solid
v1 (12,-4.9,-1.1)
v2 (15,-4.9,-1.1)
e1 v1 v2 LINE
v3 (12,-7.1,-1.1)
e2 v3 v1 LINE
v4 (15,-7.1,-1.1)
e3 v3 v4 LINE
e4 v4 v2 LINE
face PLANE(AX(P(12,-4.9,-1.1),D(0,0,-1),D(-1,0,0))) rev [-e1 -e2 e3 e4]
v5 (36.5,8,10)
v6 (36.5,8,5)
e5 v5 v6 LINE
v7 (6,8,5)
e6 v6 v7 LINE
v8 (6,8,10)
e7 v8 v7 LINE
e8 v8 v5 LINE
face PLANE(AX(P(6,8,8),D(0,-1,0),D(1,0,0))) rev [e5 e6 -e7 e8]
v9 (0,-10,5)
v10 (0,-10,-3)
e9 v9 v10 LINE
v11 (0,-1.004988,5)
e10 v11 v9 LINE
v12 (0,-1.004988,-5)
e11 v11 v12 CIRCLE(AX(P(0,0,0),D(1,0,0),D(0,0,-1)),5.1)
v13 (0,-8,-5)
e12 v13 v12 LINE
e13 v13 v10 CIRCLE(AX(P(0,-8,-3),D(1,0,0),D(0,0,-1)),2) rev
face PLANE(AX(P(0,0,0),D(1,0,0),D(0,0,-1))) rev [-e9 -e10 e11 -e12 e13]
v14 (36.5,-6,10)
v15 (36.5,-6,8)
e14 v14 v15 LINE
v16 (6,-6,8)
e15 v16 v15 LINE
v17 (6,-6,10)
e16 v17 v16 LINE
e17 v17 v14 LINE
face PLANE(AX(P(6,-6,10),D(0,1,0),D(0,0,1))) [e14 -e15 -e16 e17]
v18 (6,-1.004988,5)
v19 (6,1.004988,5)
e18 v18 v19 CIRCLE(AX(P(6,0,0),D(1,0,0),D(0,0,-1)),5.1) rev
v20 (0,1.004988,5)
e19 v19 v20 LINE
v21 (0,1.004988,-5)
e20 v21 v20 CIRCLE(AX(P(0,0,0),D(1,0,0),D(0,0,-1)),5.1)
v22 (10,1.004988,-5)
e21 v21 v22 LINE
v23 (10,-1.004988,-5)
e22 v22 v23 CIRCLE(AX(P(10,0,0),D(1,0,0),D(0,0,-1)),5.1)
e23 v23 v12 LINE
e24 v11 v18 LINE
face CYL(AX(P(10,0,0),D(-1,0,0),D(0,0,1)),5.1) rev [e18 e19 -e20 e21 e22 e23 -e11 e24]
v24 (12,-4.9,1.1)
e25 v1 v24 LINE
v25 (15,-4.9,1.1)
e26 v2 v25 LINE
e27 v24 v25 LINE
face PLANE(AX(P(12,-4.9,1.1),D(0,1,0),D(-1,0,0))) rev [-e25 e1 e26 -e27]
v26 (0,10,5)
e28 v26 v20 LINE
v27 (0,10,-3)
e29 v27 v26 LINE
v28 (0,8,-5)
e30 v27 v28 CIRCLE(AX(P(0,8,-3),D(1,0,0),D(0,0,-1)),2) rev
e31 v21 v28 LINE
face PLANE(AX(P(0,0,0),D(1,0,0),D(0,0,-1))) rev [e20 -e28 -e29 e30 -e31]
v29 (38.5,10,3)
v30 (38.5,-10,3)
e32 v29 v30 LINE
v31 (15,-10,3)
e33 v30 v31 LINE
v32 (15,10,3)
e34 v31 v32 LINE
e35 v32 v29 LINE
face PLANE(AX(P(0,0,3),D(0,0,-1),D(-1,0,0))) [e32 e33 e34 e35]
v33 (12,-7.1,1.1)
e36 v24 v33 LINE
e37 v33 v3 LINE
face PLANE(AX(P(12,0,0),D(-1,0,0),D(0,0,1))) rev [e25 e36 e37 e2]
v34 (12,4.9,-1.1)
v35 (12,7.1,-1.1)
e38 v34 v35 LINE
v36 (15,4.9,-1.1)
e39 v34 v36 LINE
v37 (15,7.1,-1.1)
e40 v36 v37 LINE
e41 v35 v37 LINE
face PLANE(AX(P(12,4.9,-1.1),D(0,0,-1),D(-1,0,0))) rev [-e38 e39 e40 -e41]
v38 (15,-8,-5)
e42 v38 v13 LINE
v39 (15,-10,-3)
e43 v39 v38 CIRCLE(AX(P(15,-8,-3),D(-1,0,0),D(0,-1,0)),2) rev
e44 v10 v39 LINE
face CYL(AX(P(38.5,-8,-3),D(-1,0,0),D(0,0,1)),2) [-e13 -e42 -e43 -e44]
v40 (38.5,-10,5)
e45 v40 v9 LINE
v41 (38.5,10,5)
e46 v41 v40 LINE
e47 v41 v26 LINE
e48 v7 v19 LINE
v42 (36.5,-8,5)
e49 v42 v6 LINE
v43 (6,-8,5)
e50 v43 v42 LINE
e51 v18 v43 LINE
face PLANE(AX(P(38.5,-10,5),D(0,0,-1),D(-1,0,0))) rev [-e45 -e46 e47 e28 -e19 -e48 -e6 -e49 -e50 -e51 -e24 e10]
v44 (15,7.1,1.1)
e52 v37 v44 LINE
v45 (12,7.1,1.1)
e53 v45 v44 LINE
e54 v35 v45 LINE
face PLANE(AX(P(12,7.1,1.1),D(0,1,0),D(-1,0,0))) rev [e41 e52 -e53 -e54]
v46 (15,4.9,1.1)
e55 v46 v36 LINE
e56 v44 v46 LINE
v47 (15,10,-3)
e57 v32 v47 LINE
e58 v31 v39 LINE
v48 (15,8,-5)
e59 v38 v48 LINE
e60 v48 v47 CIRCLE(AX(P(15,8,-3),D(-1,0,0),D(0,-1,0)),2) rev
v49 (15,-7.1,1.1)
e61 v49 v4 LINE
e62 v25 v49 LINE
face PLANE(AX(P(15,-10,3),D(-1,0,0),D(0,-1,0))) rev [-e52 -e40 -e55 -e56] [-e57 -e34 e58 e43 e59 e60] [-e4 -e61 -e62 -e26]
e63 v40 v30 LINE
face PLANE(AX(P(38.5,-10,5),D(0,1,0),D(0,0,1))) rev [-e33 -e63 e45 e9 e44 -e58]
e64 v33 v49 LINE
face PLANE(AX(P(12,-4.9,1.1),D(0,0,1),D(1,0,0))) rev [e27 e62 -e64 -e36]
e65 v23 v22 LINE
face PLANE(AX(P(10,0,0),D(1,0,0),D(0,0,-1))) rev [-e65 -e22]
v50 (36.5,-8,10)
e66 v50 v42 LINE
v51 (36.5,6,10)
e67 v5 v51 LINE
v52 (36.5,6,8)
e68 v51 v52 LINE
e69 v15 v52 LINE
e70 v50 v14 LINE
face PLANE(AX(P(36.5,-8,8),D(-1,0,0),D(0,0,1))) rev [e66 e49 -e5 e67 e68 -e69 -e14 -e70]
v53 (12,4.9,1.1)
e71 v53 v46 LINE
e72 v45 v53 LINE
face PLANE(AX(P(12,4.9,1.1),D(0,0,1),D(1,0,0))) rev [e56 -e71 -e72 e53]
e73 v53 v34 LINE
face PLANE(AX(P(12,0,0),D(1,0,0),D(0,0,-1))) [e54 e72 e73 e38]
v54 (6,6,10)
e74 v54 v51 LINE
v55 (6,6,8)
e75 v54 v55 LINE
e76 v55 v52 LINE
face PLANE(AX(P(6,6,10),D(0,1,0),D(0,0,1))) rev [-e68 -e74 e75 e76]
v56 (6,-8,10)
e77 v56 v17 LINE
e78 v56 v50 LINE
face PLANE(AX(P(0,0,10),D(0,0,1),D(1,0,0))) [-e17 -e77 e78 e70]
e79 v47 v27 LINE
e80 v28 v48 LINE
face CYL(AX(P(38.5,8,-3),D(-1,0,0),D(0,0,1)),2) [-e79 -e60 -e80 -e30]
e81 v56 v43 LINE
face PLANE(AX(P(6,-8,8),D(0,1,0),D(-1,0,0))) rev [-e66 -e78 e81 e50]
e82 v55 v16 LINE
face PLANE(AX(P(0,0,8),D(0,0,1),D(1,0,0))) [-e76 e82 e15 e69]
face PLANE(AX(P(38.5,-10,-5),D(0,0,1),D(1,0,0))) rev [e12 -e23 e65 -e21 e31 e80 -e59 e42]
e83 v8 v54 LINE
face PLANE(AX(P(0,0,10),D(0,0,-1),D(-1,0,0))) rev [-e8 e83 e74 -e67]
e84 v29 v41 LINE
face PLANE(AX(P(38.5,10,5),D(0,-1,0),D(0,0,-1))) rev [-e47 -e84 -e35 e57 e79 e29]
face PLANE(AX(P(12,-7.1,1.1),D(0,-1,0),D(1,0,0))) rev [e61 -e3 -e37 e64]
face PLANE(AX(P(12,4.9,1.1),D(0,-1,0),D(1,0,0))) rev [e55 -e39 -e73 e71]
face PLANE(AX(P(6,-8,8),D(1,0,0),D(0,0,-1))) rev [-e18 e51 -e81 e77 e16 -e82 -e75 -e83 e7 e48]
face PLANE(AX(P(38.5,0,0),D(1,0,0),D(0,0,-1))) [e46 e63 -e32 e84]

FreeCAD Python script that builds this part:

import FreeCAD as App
import Part
import Sketcher

V = App.Vector


def edges_at(feature, points):
    """Names of the edges that pass closest to the given points."""
    edges = feature.Shape.Edges
    near = lambda p: min(range(len(edges)), key=lambda i: edges[i].distToShape(Part.Vertex(*p))[0])
    return sorted({f"Edge{near(p) + 1}" for p in points})


def add_polygon(sketch, points):
    """Adds a closed chain of lines whose ends are joined by coincident constraints."""
    first, n = sketch.GeometryCount, len(points)
    for a, b in zip(points, points[1:] + points[:1]):
        sketch.addGeometry(Part.LineSegment(App.Vector(*a, 0), App.Vector(*b, 0)), False)
    for i in range(n):
        sketch.addConstraint(Sketcher.Constraint("Coincident", first + i, 2, first + (i + 1) % n, 1))

doc = App.newDocument("Part")
body = doc.addObject("PartDesign::Body", "Body")

# Sketch on YZ plane
sketch1 = body.newObject("Sketcher::SketchObject", "Sketch")
sketch1.AttachmentSupport = (doc.getObject("YZ_Plane"), [""])
sketch1.MapMode = "FlatFace"
add_polygon(sketch1, [(-10, 5), (-10, -5), (10, -5), (10, 5)])  # lines 0-3
sketch1.addConstraint(Sketcher.Constraint("Vertical", 0))
sketch1.addConstraint(Sketcher.Constraint("Horizontal", 1))
sketch1.addConstraint(Sketcher.Constraint("Vertical", 2))
sketch1.addConstraint(Sketcher.Constraint("Horizontal", 3))
sketch1.addConstraint(Sketcher.Constraint("Symmetric", 0, 2, 2, 2, -1, 1))
sketch1.addConstraint(Sketcher.Constraint("DistanceX", 1, 1, 1, 2, 20.0))
sketch1.addConstraint(Sketcher.Constraint("DistanceY", 0, 2, 0, 1, 10.0))
pad1 = body.newObject("PartDesign::Pad", "Pad")
pad1.Profile = sketch1
pad1.Length = 38.5

# Sketch on XY plane
sketch2 = body.newObject("Sketcher::SketchObject", "Sketch001")
sketch2.AttachmentSupport = (doc.getObject("XY_Plane"), [""])
sketch2.MapMode = "FlatFace"
add_polygon(sketch2, [(6, -8), (36.5, -8), (36.5, 8), (6, 8)])  # lines 0-3
sketch2.addConstraint(Sketcher.Constraint("Horizontal", 0))
sketch2.addConstraint(Sketcher.Constraint("Vertical", 1))
sketch2.addConstraint(Sketcher.Constraint("Horizontal", 2))
sketch2.addConstraint(Sketcher.Constraint("Vertical", 3))
sketch2.addConstraint(Sketcher.Constraint("DistanceY", 1, 1, 1, 2, 16.0))
sketch2.addConstraint(Sketcher.Constraint("DistanceX", 0, 1, 0, 2, 30.5))
sketch2.addConstraint(Sketcher.Constraint("DistanceY", 0, 2, -1, 1, 8.0))
sketch2.addConstraint(Sketcher.Constraint("DistanceX", -1, 1, 2, 2, 6.0))
pad2 = body.newObject("PartDesign::Pad", "Pad001")
pad2.Profile = sketch2
pad2.Length = 8

# Sketch on YZ plane
sketch3 = body.newObject("Sketcher::SketchObject", "Sketch002")
sketch3.AttachmentSupport = (doc.getObject("YZ_Plane"), [""])
sketch3.MapMode = "FlatFace"
sketch3.addGeometry(Part.Circle(V(0, 0, 0), V(0, 0, 1), 5.1), False)
sketch3.addConstraint(Sketcher.Constraint("Coincident", 0, 3, -1, 1))
sketch3.addConstraint(Sketcher.Constraint("Diameter", 0, 10.2))
pocket1 = body.newObject("PartDesign::Pocket", "Pocket")
pocket1.Profile = sketch3
pocket1.Length = 10
pocket1.Reversed = True
doc.recompute()

fillet = body.newObject("PartDesign::Fillet", "Fillet")
fillet.Base = (pocket1, edges_at(pocket1, [(19.25, 10, -5), (19.25, -10, -5)]))
fillet.Radius = 2

# Sketch on XY plane
sketch4 = body.newObject("Sketcher::SketchObject", "Sketch003")
sketch4.AttachmentSupport = (doc.getObject("XY_Plane"), [""])
sketch4.MapMode = "FlatFace"
sketch4.AttachmentOffset = App.Placement(V(0, 0, -5), App.Rotation())
add_polygon(sketch4, [(15, -10), (15, 10), (38.5, 10), (38.5, -10)])  # lines 0-3
sketch4.addConstraint(Sketcher.Constraint("Vertical", 0))
sketch4.addConstraint(Sketcher.Constraint("Horizontal", 1))
sketch4.addConstraint(Sketcher.Constraint("Vertical", 2))
sketch4.addConstraint(Sketcher.Constraint("Horizontal", 3))
sketch4.addConstraint(Sketcher.Constraint("DistanceY", 0, 1, 0, 2, 20.0))
sketch4.addConstraint(Sketcher.Constraint("DistanceX", 1, 1, 1, 2, 23.5))
sketch4.addConstraint(Sketcher.Constraint("DistanceX", -1, 1, 0, 2, 15.0))
sketch4.addConstraint(Sketcher.Constraint("DistanceY", -1, 1, 0, 2, 10.0))
pocket2 = body.newObject("PartDesign::Pocket", "Pocket001")
pocket2.Profile = sketch4
pocket2.Length = 8
pocket2.Reversed = True

# Sketch on YZ plane
sketch5 = body.newObject("Sketcher::SketchObject", "Sketch004")
sketch5.AttachmentSupport = (doc.getObject("YZ_Plane"), [""])
sketch5.MapMode = "FlatFace"
sketch5.AttachmentOffset = App.Placement(V(0, 0, 15), App.Rotation())
add_polygon(sketch5, [(4.9, 1.1), (4.9, -1.1), (7.1, -1.1), (7.1, 1.1)])  # lines 0-3
add_polygon(sketch5, [(-7.1, 1.1), (-7.1, -1.1), (-4.9, -1.1), (-4.9, 1.1)])  # lines 4-7
sketch5.addConstraint(Sketcher.Constraint("Vertical", 0))
sketch5.addConstraint(Sketcher.Constraint("Horizontal", 1))
sketch5.addConstraint(Sketcher.Constraint("Vertical", 2))
sketch5.addConstraint(Sketcher.Constraint("Horizontal", 3))
sketch5.addConstraint(Sketcher.Constraint("Vertical", 4))
sketch5.addConstraint(Sketcher.Constraint("Horizontal", 5))
sketch5.addConstraint(Sketcher.Constraint("Vertical", 6))
sketch5.addConstraint(Sketcher.Constraint("Horizontal", 7))
sketch5.addConstraint(Sketcher.Constraint("Symmetric", 2, 2, 4, 2, -1, 1))
sketch5.addConstraint(Sketcher.Constraint("Symmetric", 0, 2, 6, 2, -1, 1))
sketch5.addConstraint(Sketcher.Constraint("Horizontal", 1, 2, 4, 2))
sketch5.addConstraint(Sketcher.Constraint("Equal", 7, 0))
sketch5.addConstraint(Sketcher.Constraint("DistanceX", 1, 1, 1, 2, 2.2))
sketch5.addConstraint(Sketcher.Constraint("DistanceX", 4, 2, 0, 2, 12.0))
pocket3 = body.newObject("PartDesign::Pocket", "Pocket002")
pocket3.Profile = sketch5
pocket3.Length = 3

# Sketch on XY plane
sketch6 = body.newObject("Sketcher::SketchObject", "Sketch005")
sketch6.AttachmentSupport = (doc.getObject("XY_Plane"), [""])
sketch6.MapMode = "FlatFace"
sketch6.AttachmentOffset = App.Placement(V(0, 0, 8), App.Rotation())
add_polygon(sketch6, [(6, 8), (6, 6), (36.5, 6), (36.5, 8)])  # lines 0-3
add_polygon(sketch6, [(6, -6), (6, -8), (36.5, -8), (36.5, -6)])  # lines 4-7
sketch6.addConstraint(Sketcher.Constraint("Vertical", 0))
sketch6.addConstraint(Sketcher.Constraint("Horizontal", 1))
sketch6.addConstraint(Sketcher.Constraint("Vertical", 2))
sketch6.addConstraint(Sketcher.Constraint("Horizontal", 3))
sketch6.addConstraint(Sketcher.Constraint("Vertical", 4))
sketch6.addConstraint(Sketcher.Constraint("Horizontal", 5))
sketch6.addConstraint(Sketcher.Constraint("Vertical", 6))
sketch6.addConstraint(Sketcher.Constraint("Horizontal", 7))
sketch6.addConstraint(Sketcher.Constraint("Symmetric", 3, 2, 4, 2, -1))
sketch6.addConstraint(Sketcher.Constraint("Symmetric", 1, 2, 6, 2, -1))
sketch6.addConstraint(Sketcher.Constraint("DistanceY", 0, 2, 0, 1, 2.0))
sketch6.addConstraint(Sketcher.Constraint("DistanceX", 1, 1, 1, 2, 30.5))
sketch6.addConstraint(Sketcher.Constraint("DistanceX", -1, 1, 0, 2, 6.0))
sketch6.addConstraint(Sketcher.Constraint("DistanceY", -1, 1, 0, 2, 6.0))
pad3 = body.newObject("PartDesign::Pad", "Pad002")
pad3.Profile = sketch6
pad3.Length = 2

doc.recompute()
